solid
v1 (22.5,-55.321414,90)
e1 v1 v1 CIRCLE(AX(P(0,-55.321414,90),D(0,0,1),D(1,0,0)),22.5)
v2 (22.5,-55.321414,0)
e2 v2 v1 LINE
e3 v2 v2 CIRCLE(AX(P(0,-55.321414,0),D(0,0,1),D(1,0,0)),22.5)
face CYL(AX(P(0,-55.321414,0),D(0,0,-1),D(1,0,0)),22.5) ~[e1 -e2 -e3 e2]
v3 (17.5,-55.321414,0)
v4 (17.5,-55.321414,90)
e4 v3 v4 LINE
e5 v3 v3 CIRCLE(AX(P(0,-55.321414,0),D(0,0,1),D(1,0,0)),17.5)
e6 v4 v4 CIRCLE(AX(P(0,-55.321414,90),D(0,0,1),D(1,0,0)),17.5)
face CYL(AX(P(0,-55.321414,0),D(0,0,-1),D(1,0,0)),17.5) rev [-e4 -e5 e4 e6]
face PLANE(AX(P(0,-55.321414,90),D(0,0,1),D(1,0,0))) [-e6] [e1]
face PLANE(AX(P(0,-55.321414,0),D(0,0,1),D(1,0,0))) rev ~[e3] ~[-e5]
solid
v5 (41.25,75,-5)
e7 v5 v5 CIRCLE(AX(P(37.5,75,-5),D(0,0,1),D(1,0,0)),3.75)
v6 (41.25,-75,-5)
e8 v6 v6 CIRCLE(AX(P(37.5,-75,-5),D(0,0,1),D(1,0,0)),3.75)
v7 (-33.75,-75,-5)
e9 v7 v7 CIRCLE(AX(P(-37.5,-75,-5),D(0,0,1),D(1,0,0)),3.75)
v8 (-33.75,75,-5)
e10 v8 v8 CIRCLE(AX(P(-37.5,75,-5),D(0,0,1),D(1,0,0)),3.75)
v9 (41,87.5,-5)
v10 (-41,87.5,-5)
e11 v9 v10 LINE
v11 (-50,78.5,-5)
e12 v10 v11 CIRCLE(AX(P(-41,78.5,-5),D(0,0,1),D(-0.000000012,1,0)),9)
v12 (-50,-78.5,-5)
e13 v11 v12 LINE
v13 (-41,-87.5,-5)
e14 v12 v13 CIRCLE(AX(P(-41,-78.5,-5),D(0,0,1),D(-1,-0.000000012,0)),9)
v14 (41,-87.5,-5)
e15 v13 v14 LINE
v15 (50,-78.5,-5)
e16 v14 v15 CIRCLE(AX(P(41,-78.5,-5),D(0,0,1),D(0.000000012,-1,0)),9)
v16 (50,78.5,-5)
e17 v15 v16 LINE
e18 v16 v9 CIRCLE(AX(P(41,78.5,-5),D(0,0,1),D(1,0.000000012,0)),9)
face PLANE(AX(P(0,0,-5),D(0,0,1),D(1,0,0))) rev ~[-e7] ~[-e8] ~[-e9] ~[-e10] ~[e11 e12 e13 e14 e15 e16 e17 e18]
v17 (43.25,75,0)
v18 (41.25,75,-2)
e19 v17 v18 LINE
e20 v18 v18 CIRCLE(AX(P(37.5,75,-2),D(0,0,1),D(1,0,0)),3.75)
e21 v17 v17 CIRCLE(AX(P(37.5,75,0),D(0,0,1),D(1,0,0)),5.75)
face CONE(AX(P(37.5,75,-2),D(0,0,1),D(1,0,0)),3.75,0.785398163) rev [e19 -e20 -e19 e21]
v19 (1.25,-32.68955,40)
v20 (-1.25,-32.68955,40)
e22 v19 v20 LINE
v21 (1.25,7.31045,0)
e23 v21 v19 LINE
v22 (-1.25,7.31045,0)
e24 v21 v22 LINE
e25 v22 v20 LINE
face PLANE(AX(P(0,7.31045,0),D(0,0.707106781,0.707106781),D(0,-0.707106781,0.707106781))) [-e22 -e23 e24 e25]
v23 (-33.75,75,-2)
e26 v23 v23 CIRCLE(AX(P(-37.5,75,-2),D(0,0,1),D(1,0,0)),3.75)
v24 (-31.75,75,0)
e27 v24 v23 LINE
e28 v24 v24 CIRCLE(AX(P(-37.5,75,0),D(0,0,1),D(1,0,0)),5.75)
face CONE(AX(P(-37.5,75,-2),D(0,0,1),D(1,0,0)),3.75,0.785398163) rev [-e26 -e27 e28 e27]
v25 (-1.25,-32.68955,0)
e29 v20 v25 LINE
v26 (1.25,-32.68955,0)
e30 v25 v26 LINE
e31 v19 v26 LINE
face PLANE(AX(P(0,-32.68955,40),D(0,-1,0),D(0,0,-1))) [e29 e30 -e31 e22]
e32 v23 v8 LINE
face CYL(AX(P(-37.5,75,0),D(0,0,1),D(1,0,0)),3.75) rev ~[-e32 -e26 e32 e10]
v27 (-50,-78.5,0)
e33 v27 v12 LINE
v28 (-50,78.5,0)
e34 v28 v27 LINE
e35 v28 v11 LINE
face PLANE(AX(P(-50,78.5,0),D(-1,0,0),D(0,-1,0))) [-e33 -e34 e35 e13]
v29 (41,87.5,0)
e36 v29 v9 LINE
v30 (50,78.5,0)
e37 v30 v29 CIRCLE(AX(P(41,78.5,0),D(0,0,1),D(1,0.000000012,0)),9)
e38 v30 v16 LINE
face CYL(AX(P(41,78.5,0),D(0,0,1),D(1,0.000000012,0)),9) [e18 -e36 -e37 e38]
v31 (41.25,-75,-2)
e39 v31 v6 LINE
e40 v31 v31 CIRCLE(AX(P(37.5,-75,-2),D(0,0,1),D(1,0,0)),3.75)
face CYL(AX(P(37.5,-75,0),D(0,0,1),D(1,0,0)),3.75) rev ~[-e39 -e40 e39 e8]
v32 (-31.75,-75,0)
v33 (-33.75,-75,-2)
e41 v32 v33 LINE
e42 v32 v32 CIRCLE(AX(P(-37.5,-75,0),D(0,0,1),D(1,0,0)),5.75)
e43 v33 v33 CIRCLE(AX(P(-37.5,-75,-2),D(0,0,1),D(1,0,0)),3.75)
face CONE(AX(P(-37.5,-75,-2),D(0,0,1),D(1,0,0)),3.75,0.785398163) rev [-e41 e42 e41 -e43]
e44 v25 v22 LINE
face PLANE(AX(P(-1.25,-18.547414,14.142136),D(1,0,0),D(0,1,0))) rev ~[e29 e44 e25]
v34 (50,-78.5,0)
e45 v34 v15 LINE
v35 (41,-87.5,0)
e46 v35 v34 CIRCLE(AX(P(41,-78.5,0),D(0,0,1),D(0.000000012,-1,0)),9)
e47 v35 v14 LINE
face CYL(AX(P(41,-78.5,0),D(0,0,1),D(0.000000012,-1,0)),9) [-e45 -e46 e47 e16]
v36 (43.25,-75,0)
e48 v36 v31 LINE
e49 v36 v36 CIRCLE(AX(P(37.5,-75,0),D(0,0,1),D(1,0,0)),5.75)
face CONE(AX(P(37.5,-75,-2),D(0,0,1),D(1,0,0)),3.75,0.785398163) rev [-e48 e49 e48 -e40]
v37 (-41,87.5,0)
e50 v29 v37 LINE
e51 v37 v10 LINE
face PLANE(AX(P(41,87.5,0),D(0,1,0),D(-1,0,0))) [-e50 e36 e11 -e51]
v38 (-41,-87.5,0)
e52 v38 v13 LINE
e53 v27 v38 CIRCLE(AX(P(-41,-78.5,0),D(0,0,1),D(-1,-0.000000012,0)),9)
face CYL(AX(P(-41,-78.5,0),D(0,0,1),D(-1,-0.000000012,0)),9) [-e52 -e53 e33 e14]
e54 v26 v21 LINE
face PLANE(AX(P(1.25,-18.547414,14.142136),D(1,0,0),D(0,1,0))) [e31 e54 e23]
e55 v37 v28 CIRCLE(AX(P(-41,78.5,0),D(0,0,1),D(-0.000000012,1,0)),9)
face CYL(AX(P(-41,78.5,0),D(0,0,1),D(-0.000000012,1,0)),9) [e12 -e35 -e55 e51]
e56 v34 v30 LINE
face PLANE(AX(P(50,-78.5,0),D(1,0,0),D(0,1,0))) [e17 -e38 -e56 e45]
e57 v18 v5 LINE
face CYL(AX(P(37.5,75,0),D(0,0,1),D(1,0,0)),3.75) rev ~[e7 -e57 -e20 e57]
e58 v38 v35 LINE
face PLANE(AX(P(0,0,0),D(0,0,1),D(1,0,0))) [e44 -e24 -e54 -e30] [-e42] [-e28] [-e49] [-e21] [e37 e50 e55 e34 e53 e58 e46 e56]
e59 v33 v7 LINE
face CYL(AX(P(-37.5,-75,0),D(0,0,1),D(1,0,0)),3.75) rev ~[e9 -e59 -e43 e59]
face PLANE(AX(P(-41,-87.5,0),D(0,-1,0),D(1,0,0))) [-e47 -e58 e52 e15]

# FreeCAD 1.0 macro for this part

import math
import FreeCAD as App
import Part
import Sketcher
from FreeCAD import Vector
Q = App.Units.Quantity


def edges_at(feature, points):
    """Names of the edges that pass closest to the given points."""
    edges = feature.Shape.Edges
    near = lambda p: min(range(len(edges)), key=lambda i: edges[i].distToShape(Part.Vertex(*p))[0])
    return sorted({f"Edge{near(p) + 1}" for p in points})


def add_polygon(sketch, points):
    """Adds a closed chain of lines whose ends are joined by coincident constraints."""
    first, n = sketch.GeometryCount, len(points)
    for a, b in zip(points, points[1:] + points[:1]):
        sketch.addGeometry(Part.LineSegment(App.Vector(*a, 0), App.Vector(*b, 0)), False)
    for i in range(n):
        sketch.addConstraint(Sketcher.Constraint("Coincident", first + i, 2, first + (i + 1) % n, 1))

doc = App.newDocument("Part")
params = doc.addObject("Spreadsheet::Sheet", "Params")
for row, (alias, value) in enumerate([
    ("sketch1_diameter", "45 mm"),
    ("sketch1_diameter2", "35 mm"),
    ("pad1_length", "90 mm"),
    ("sketch2_radius", "9 mm"),
    ("sketch2_diameter", "7.5 mm"),
    ("sketch2_width", "82 mm"),
    ("sketch2_height", "157 mm"),
    ("pad2_length", "5 mm"),
    ("sketch3_width", "40 mm"),
    ("pad3_length", "2.5 mm"),
    ("chamfer_size", "2 mm"),
], start=1):
    params.set(f"A{row}", alias)
    params.set(f"B{row}", "=" + value)
    params.setAlias(f"B{row}", alias)

body = doc.addObject("PartDesign::Body", "Body")

sketch1 = body.newObject("Sketcher::SketchObject", "Sketch")
sketch1.AttachmentSupport = (doc.getObject("XY_Plane"), [""])
sketch1.MapMode = "FlatFace"
sketch1.addGeometry(Part.Circle(Vector(0, -55.321414, 0), Vector(0, 0, 1), 22.5), False)
sketch1.addGeometry(Part.Circle(Vector(0, -55.321414, 0), Vector(0, 0, 1), 17.5), False)
sketch1.addConstraint(Sketcher.Constraint("Coincident", 1, 3, 0, 3))
sketch1.addConstraint(Sketcher.Constraint("PointOnObject", 0, 3, -2))
sketch1.addConstraint(Sketcher.Constraint("Diameter", 0, Q("45 mm")))
sketch1.addConstraint(Sketcher.Constraint("Diameter", 1, Q("35 mm")))
sketch1.addConstraint(Sketcher.Constraint("DistanceY", 0, 3, -1, 1, Q("55.321414 mm")))
sketch1.setExpression("Constraints[2]", "Params.sketch1_diameter")
sketch1.setExpression("Constraints[3]", "Params.sketch1_diameter2")
pad1 = body.newObject("PartDesign::Pad", "Pad")
pad1.Profile = sketch1
pad1.setExpression("Length", "Params.pad1_length")
body2 = doc.addObject("PartDesign::Body", "Body001")

sketch2 = body2.newObject("Sketcher::SketchObject", "Sketch001")
sketch2.AttachmentSupport = (doc.getObject("XY_Plane001"), [""])
sketch2.MapMode = "FlatFace"
sketch2.addGeometry(Part.ArcOfCircle(Part.Circle(Vector(-41, -78.5, 0), Vector(0, 0, 1), 9), math.radians(-179.999999), math.radians(-90.000001)), False)
sketch2.addGeometry(Part.LineSegment(Vector(-41, -87.5, 0), Vector(41, -87.5, 0)), False)
sketch2.addGeometry(Part.ArcOfCircle(Part.Circle(Vector(41, -78.5, 0), Vector(0, 0, 1), 9), math.radians(-89.999999), math.radians(-0.000001)), False)
sketch2.addGeometry(Part.LineSegment(Vector(50, -78.5, 0), Vector(50, 78.5, 0)), False)
sketch2.addGeometry(Part.ArcOfCircle(Part.Circle(Vector(41, 78.5, 0), Vector(0, 0, 1), 9), math.radians(0.000001), math.radians(89.999999)), False)
sketch2.addGeometry(Part.LineSegment(Vector(41, 87.5, 0), Vector(-41, 87.5, 0)), False)
sketch2.addGeometry(Part.ArcOfCircle(Part.Circle(Vector(-41, 78.5, 0), Vector(0, 0, 1), 9), math.radians(90.000001), math.radians(179.999999)), False)
sketch2.addGeometry(Part.LineSegment(Vector(-50, 78.5, 0), Vector(-50, -78.5, 0)), False)
sketch2.addGeometry(Part.Circle(Vector(-37.5, -75, 0), Vector(0, 0, 1), 3.75), False)
sketch2.addGeometry(Part.Circle(Vector(37.5, -75, 0), Vector(0, 0, 1), 3.75), False)
sketch2.addGeometry(Part.Circle(Vector(-37.5, 75, 0), Vector(0, 0, 1), 3.75), False)
sketch2.addGeometry(Part.Circle(Vector(37.5, 75, 0), Vector(0, 0, 1), 3.75), False)
sketch2.addConstraint(Sketcher.Constraint("Tangent", 0, 2, 1, 1))
sketch2.addConstraint(Sketcher.Constraint("Tangent", 1, 2, 2, 1))
sketch2.addConstraint(Sketcher.Constraint("Tangent", 2, 2, 3, 1))
sketch2.addConstraint(Sketcher.Constraint("Tangent", 3, 2, 4, 1))
sketch2.addConstraint(Sketcher.Constraint("Tangent", 4, 2, 5, 1))
sketch2.addConstraint(Sketcher.Constraint("Tangent", 5, 2, 6, 1))
sketch2.addConstraint(Sketcher.Constraint("Tangent", 6, 2, 7, 1))
sketch2.addConstraint(Sketcher.Constraint("Tangent", 7, 2, 0, 1))
sketch2.addConstraint(Sketcher.Constraint("Horizontal", 1))
sketch2.addConstraint(Sketcher.Constraint("Vertical", 3))
sketch2.addConstraint(Sketcher.Constraint("Horizontal", 5))
sketch2.addConstraint(Sketcher.Constraint("Vertical", 7))
sketch2.addConstraint(Sketcher.Constraint("Equal", 0, 2))
sketch2.addConstraint(Sketcher.Constraint("Equal", 2, 4))
sketch2.addConstraint(Sketcher.Constraint("Equal", 4, 6))
sketch2.addConstraint(Sketcher.Constraint("Equal", 8, 9))
sketch2.addConstraint(Sketcher.Constraint("Equal", 9, 10))
sketch2.addConstraint(Sketcher.Constraint("Equal", 10, 11))
sketch2.addConstraint(Sketcher.Constraint("Symmetric", 0, 3, 4, 3, -1, 1))
sketch2.addConstraint(Sketcher.Constraint("Symmetric", 9, 3, 10, 3, -1, 1))
sketch2.addConstraint(Sketcher.Constraint("Symmetric", 8, 3, 11, 3, -1, 1))
sketch2.addConstraint(Sketcher.Constraint("Symmetric", 8, 3, 9, 3, -2))
sketch2.addConstraint(Sketcher.Constraint("Radius", 0, Q("9 mm")))
sketch2.addConstraint(Sketcher.Constraint("Diameter", 8, Q("7.5 mm")))
sketch2.addConstraint(Sketcher.Constraint("DistanceX", 1, 1, 1, 2, Q("82 mm")))
sketch2.addConstraint(Sketcher.Constraint("DistanceY", 3, 1, 3, 2, Q("157 mm")))
sketch2.addConstraint(Sketcher.Constraint("DistanceY", 8, 3, -1, 1, Q("75 mm")))
sketch2.addConstraint(Sketcher.Constraint("DistanceX", 8, 3, 9, 3, Q("75 mm")))
sketch2.setExpression("Constraints[22]", "Params.sketch2_radius")
sketch2.setExpression("Constraints[23]", "Params.sketch2_diameter")
sketch2.setExpression("Constraints[24]", "Params.sketch2_width")
sketch2.setExpression("Constraints[25]", "Params.sketch2_height")
pad2 = body2.newObject("PartDesign::Pad", "Pad001")
pad2.Profile = sketch2
pad2.setExpression("Length", "Params.pad2_length")
pad2.Reversed = True

sketch3 = body2.newObject("Sketcher::SketchObject", "Sketch002")
sketch3.AttachmentSupport = (doc.getObject("YZ_Plane001"), [""])
sketch3.MapMode = "FlatFace"
add_polygon(sketch3, [(-32.68955, 40), (-32.68955, 0), (7.31045, 0)])
sketch3.addConstraint(Sketcher.Constraint("Vertical", 0))
sketch3.addConstraint(Sketcher.Constraint("Horizontal", 1))
sketch3.addConstraint(Sketcher.Constraint("PointOnObject", 0, 2, -1))
sketch3.addConstraint(Sketcher.Constraint("Equal", 1, 0))
sketch3.addConstraint(Sketcher.Constraint("DistanceX", 1, 1, 1, 2, Q("40 mm")))
sketch3.addConstraint(Sketcher.Constraint("DistanceX", 0, 2, -1, 1, Q("32.68955 mm")))
sketch3.setExpression("Constraints[7]", "Params.sketch3_width")
pad3 = body2.newObject("PartDesign::Pad", "Pad002")
pad3.Profile = sketch3
pad3.setExpression("Length", "Params.pad3_length")
pad3.Midplane = True
doc.recompute()

chamfer = body2.newObject("PartDesign::Chamfer", "Chamfer")
chamfer.Base = (pad3, edges_at(pad3, [
    (33.75, 75, 0),
    (-41.25, 75, 0),
    (33.75, -75, 0),
    (-41.25, -75, 0),
]))
chamfer.setExpression("Size", "Params.chamfer_size")

doc.recompute()
